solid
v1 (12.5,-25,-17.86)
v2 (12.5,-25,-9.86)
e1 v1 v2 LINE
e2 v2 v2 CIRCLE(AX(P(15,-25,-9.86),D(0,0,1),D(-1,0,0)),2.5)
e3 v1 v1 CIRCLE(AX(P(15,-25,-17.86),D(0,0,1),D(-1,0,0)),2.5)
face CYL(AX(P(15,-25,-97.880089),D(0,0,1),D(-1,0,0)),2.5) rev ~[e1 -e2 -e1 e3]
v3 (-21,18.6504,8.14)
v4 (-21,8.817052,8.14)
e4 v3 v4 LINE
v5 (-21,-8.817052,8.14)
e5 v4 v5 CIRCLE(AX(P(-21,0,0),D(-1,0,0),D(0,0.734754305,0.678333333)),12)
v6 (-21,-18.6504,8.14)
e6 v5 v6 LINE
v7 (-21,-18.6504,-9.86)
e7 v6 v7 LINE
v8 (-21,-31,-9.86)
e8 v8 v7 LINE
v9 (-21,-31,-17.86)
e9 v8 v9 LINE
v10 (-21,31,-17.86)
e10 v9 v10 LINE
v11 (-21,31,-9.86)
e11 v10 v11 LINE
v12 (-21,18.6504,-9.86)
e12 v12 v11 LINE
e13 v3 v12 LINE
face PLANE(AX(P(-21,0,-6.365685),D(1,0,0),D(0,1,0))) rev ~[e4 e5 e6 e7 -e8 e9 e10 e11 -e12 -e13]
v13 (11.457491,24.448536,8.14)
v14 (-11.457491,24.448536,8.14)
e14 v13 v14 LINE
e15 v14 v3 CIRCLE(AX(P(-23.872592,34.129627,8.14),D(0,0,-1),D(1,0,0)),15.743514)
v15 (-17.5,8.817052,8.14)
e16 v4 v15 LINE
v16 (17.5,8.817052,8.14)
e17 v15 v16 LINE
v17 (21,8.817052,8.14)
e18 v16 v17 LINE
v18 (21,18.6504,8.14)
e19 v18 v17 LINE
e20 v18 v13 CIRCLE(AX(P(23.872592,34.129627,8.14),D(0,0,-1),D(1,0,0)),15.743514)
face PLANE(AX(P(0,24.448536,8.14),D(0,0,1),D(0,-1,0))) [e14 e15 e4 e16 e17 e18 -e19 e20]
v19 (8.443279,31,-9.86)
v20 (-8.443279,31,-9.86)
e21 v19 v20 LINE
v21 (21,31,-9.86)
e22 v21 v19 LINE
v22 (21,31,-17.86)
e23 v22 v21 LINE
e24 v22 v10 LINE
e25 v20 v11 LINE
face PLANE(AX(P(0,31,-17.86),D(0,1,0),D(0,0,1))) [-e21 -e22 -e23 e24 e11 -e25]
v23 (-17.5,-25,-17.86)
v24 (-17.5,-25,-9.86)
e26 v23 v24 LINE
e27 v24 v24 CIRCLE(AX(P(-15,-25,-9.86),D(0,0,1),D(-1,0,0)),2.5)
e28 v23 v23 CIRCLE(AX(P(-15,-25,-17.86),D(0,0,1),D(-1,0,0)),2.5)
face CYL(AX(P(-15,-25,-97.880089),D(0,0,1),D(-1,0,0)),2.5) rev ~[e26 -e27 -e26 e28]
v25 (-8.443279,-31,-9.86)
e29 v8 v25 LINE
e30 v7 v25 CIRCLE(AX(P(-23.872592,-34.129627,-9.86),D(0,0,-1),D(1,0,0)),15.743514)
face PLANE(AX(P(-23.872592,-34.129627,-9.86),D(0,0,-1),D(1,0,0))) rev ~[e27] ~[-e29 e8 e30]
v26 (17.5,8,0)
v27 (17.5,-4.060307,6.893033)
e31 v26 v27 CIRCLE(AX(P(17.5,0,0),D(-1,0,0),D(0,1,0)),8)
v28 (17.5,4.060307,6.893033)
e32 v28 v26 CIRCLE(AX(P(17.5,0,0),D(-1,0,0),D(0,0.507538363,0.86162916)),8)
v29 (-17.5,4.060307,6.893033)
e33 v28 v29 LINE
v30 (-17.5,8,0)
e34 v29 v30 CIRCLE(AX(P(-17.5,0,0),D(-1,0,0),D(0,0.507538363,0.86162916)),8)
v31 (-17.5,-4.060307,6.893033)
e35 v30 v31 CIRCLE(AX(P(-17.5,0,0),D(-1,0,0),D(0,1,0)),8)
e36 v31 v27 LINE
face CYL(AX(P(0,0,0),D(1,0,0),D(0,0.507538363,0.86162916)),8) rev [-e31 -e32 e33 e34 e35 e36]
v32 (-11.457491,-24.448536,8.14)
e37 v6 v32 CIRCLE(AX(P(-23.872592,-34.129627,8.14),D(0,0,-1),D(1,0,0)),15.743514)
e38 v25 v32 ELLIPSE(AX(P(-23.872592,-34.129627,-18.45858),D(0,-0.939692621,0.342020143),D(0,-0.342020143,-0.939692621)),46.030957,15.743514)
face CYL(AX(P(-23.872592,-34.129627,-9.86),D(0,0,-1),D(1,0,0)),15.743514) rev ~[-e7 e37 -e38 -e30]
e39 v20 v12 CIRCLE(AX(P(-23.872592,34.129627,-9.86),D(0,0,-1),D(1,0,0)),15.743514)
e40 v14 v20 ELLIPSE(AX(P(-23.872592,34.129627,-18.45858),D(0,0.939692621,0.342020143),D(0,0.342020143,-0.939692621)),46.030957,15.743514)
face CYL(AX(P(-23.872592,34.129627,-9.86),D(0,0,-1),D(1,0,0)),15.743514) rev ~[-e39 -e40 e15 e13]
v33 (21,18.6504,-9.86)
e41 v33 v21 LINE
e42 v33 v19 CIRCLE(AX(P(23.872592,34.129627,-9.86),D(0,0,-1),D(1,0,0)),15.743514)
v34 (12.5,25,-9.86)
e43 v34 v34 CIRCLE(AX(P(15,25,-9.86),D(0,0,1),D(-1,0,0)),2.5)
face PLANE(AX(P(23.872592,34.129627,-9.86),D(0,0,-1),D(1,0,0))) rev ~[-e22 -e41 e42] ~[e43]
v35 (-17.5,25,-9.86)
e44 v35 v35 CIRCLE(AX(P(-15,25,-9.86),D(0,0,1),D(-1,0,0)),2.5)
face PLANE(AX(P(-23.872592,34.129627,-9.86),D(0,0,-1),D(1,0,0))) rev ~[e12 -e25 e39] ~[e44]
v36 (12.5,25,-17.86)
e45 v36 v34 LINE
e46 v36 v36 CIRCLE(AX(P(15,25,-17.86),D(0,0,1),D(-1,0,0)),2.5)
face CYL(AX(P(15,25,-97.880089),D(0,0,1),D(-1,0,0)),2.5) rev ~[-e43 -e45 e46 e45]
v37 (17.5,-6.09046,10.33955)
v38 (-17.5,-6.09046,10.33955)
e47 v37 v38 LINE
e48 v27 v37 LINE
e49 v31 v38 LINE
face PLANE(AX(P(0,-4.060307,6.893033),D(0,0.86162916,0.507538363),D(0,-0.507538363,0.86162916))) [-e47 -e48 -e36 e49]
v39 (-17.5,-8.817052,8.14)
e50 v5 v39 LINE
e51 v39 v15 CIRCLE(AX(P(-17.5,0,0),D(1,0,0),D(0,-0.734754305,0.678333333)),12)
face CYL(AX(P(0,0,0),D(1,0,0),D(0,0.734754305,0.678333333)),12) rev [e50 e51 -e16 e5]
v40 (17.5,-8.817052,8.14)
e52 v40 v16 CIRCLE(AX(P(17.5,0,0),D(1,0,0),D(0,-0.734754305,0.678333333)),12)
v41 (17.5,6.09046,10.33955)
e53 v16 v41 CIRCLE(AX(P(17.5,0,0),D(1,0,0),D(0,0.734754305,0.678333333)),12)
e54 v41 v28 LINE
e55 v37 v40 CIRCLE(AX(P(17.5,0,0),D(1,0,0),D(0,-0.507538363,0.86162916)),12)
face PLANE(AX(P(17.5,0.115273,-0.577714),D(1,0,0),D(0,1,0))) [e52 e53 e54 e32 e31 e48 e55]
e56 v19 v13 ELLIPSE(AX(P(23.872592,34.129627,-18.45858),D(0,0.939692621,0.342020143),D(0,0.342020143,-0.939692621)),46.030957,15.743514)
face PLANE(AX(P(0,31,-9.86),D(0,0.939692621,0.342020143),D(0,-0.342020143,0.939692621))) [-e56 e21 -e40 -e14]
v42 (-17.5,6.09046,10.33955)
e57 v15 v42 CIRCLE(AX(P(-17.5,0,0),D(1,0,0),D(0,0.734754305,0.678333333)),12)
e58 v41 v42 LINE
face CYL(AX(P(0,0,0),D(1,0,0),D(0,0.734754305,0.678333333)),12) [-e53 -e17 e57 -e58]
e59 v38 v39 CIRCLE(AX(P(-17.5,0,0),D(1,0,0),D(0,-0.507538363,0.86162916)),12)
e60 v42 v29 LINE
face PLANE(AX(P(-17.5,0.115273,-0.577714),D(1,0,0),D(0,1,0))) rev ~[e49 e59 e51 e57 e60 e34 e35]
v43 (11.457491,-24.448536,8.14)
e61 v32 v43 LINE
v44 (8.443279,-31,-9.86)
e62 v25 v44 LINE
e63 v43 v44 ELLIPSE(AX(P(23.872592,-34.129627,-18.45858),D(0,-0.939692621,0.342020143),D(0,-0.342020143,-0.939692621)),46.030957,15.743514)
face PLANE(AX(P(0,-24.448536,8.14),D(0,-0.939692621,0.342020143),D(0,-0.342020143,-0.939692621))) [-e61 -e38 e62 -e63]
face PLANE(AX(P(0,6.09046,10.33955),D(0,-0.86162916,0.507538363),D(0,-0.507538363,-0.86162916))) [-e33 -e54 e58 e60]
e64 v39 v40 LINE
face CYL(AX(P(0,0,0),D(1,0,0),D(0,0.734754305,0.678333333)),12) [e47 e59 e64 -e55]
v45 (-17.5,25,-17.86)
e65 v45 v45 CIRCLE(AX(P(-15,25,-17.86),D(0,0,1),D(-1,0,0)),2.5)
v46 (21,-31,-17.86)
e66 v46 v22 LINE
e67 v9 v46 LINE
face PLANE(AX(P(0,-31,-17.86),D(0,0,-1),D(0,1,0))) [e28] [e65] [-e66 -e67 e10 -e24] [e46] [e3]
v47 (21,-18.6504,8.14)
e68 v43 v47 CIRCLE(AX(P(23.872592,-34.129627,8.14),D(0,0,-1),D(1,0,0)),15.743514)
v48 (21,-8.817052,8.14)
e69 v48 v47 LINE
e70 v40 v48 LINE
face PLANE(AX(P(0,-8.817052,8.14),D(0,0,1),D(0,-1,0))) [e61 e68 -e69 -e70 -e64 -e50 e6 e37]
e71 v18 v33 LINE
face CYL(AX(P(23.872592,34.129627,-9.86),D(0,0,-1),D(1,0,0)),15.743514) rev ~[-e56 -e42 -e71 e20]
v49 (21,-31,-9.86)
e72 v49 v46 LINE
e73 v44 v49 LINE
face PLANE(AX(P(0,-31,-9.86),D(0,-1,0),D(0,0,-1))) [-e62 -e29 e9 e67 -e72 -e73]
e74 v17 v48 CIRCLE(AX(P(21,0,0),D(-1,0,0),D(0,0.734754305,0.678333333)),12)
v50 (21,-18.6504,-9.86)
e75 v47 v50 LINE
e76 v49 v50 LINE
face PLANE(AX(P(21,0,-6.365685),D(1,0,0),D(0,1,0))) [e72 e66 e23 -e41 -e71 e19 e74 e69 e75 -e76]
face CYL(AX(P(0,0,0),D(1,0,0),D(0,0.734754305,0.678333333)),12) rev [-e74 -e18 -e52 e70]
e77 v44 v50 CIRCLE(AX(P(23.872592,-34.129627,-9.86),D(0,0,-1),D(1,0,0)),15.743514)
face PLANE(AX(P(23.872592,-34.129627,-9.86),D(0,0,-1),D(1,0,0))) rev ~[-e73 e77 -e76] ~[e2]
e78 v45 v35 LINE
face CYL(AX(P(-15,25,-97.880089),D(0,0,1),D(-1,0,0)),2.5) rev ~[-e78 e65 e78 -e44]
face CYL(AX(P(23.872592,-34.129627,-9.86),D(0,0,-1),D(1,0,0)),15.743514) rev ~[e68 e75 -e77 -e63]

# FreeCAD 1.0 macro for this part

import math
import FreeCAD as App
import Part
import Sketcher

V = App.Vector
Q = App.Units.Quantity

doc = App.newDocument("Part")
body = doc.addObject("PartDesign::Body", "Body")

# Sketch on YZ plane
sketch1 = body.newObject("Sketcher::SketchObject", "Sketch")
sketch1.AttachmentSupport = (doc.getObject("YZ_Plane"), [""])
sketch1.MapMode = "FlatFace"
sketch1.addGeometry([
    Part.LineSegment(V(24.448536, 8.14, 0), V(8.817052, 8.14, 0)),  # 0
    Part.ArcOfCircle(Part.Circle(V(0, 0, 0), V(0, 0, 1), 12), math.radians(137.286459), math.radians(402.713541)),  # 1
    Part.LineSegment(V(-8.817052, 8.14, 0), V(-24.448536, 8.14, 0)),  # 2
    Part.LineSegment(V(-24.448536, 8.14, 0), V(-31, -9.86, 0)),  # 3
    Part.LineSegment(V(-31, -9.86, 0), V(-31, -17.86, 0)),  # 4
    Part.LineSegment(V(-31, -17.86, 0), V(31, -17.86, 0)),  # 5
    Part.LineSegment(V(31, -17.86, 0), V(31, -9.86, 0)),  # 6
    Part.LineSegment(V(31, -9.86, 0), V(24.448536, 8.14, 0)),  # 7
], False)
sketch1.addConstraint([
    Sketcher.Constraint("Coincident", 0, 2, 1, 2),
    Sketcher.Constraint("Coincident", 1, 1, 2, 1),
    Sketcher.Constraint("Coincident", 2, 2, 3, 1),
    Sketcher.Constraint("Coincident", 3, 2, 4, 1),
    Sketcher.Constraint("Coincident", 4, 2, 5, 1),
    Sketcher.Constraint("Coincident", 5, 2, 6, 1),
    Sketcher.Constraint("Coincident", 6, 2, 7, 1),
    Sketcher.Constraint("Coincident", 7, 2, 0, 1),
    Sketcher.Constraint("Horizontal", 0),
    Sketcher.Constraint("Horizontal", 2),
    Sketcher.Constraint("Vertical", 4),
    Sketcher.Constraint("Horizontal", 5),
    Sketcher.Constraint("Vertical", 6),
    Sketcher.Constraint("Coincident", 1, 3, -1, 1),
    Sketcher.Constraint("Symmetric", 3, 2, 6, 2, -2),
    Sketcher.Constraint("Symmetric", 2, 2, 7, 2, -2),
    Sketcher.Constraint("Radius", 1, 12.0),
    Sketcher.Constraint("DistanceX", 5, 1, 5, 2, 62.0),
    Sketcher.Constraint("DistanceY", 4, 2, 4, 1, 8.0),
    Sketcher.Constraint("Angle", 3, Q("-110 deg")),
    Sketcher.Constraint("DistanceY", 3, 2, 2, 2, 18.0),
    Sketcher.Constraint("DistanceY", -1, 1, 0, 2, 8.14),
])
pad1 = body.newObject("PartDesign::Pad", "Pad")
pad1.Profile = sketch1
pad1.Length = 42
pad1.Midplane = True

# Sketch on XY plane
sketch2 = body.newObject("Sketcher::SketchObject", "Sketch001")
sketch2.AttachmentSupport = (doc.getObject("XY_Plane"), [""])
sketch2.MapMode = "FlatFace"
sketch2.AttachmentOffset = App.Placement(V(0, 0, -9.86), App.Rotation())
sketch2.addGeometry([
    Part.Circle(V(-23.872592, -34.129627, 0), V(0, 0, 1), 15.743514),
    Part.Circle(V(-23.872592, 34.129627, 0), V(0, 0, 1), 15.743514),
    Part.Circle(V(23.872592, 34.129627, 0), V(0, 0, 1), 15.743514),
    Part.Circle(V(23.872592, -34.129627, 0), V(0, 0, 1), 15.743514),
], False)
sketch2.addConstraint([
    Sketcher.Constraint("Equal", 0, 1),
    Sketcher.Constraint("Equal", 1, 2),
    Sketcher.Constraint("Equal", 2, 3),
    Sketcher.Constraint("Symmetric", 0, 3, 2, 3, -1, 1),
    Sketcher.Constraint("Symmetric", 1, 3, 3, 3, -1, 1),
    Sketcher.Constraint("Symmetric", 1, 3, 2, 3, -2),
    Sketcher.Constraint("Diameter", 0, 31.487029),
    Sketcher.Constraint("DistanceX", 0, 3, -1, 1, 23.872592),
    Sketcher.Constraint("DistanceY", 0, 3, -1, 1, 34.129627),
])
pocket1 = body.newObject("PartDesign::Pocket", "Pocket")
pocket1.Profile = sketch2
pocket1.Length = 33
pocket1.Reversed = True

# Sketch on YZ plane
sketch3 = body.newObject("Sketcher::SketchObject", "Sketch002")
sketch3.AttachmentSupport = (doc.getObject("YZ_Plane"), [""])
sketch3.MapMode = "FlatFace"
sketch3.addGeometry([
    Part.ArcOfCircle(Part.Circle(V(0, 0, 0), V(0, 0, 1), 8), math.radians(0), math.radians(59.5)),  # 0
    Part.ArcOfCircle(Part.Circle(V(0, 0, 0), V(0, 0, 1), 8), math.radians(120.5), math.radians(360)),  # 1
    Part.LineSegment(V(-4.060307, 6.893033, 0), V(-6.09046, 10.33955, 0)),  # 2
    Part.ArcOfCircle(Part.Circle(V(0, 0, 0), V(0, 0, 1), 12), math.radians(120.5), math.radians(137.286459)),  # 3
    Part.ArcOfCircle(Part.Circle(V(0, 0, 0), V(0, 0, 1), 12), math.radians(137.286459), math.radians(402.713541)),  # 4
    Part.ArcOfCircle(Part.Circle(V(0, 0, 0), V(0, 0, 1), 12), math.radians(42.713541), math.radians(59.5)),  # 5
    Part.LineSegment(V(6.09046, 10.33955, 0), V(4.060307, 6.893033, 0)),  # 6
], False)
sketch3.addConstraint([
    Sketcher.Constraint("Tangent", 0, 1, 1, 2),
    Sketcher.Constraint("Coincident", 1, 1, 2, 1),
    Sketcher.Constraint("Coincident", 2, 2, 3, 1),
    Sketcher.Constraint("Tangent", 3, 2, 4, 1),
    Sketcher.Constraint("Tangent", 4, 2, 5, 1),
    Sketcher.Constraint("Coincident", 5, 2, 6, 1),
    Sketcher.Constraint("Coincident", 6, 2, 0, 2),
    Sketcher.Constraint("Coincident", 0, 3, -1, 1),
    Sketcher.Constraint("Coincident", 3, 3, -1, 1),
    Sketcher.Constraint("Coincident", 5, 3, -1, 1),
    Sketcher.Constraint("Equal", 0, 1),
    Sketcher.Constraint("PointOnObject", 0, 1, -1),
    Sketcher.Constraint("Horizontal", 3, 2, 4, 2),
    Sketcher.Constraint("Horizontal", 2, 2, 5, 2),
    Sketcher.Constraint("Horizontal", 1, 1, 6, 2),
    Sketcher.Constraint("Radius", 0, 8.0),
    Sketcher.Constraint("Radius", 3, 12.0),
    Sketcher.Constraint("Angle", 2, Q("120.5 deg")),
    Sketcher.Constraint("DistanceY", -1, 1, 3, 2, 8.14),
    Sketcher.Constraint("DistanceX", 2, 2, -1, 1, 6.09046),
])
pad2 = body.newObject("PartDesign::Pad", "Pad001")
pad2.Profile = sketch3
pad2.Length = 35
pad2.Midplane = True

# Sketch on XY plane
sketch4 = body.newObject("Sketcher::SketchObject", "Sketch003")
sketch4.AttachmentSupport = (doc.getObject("XY_Plane"), [""])
sketch4.MapMode = "FlatFace"
sketch4.AttachmentOffset = App.Placement(V(0, 0, -17.86), App.Rotation())
sketch4.addGeometry([
    Part.Circle(V(-15, 25, 0), V(0, 0, 1), 2.5),
    Part.Circle(V(-15, -25, 0), V(0, 0, 1), 2.5),
    Part.Circle(V(15, -25, 0), V(0, 0, 1), 2.5),
    Part.Circle(V(15, 25, 0), V(0, 0, 1), 2.5),
], False)
sketch4.addConstraint([
    Sketcher.Constraint("Equal", 0, 1),
    Sketcher.Constraint("Equal", 1, 2),
    Sketcher.Constraint("Equal", 2, 3),
    Sketcher.Constraint("Symmetric", 0, 3, 2, 3, -1, 1),
    Sketcher.Constraint("Symmetric", 1, 3, 3, 3, -1, 1),
    Sketcher.Constraint("Symmetric", 1, 3, 2, 3, -2),
    Sketcher.Constraint("Diameter", 0, 5.0),
    Sketcher.Constraint("DistanceX", 0, 3, -1, 1, 15.0),
    Sketcher.Constraint("DistanceY", -1, 1, 0, 3, 25.0),
])
doc.recompute()
hole = body.newObject("PartDesign::Hole", "Hole")
hole.Profile = sketch4
hole.ThreadType = "None"
hole.Diameter = 5
hole.DepthType = "ThroughAll"
hole.Reversed = True

doc.recompute()
